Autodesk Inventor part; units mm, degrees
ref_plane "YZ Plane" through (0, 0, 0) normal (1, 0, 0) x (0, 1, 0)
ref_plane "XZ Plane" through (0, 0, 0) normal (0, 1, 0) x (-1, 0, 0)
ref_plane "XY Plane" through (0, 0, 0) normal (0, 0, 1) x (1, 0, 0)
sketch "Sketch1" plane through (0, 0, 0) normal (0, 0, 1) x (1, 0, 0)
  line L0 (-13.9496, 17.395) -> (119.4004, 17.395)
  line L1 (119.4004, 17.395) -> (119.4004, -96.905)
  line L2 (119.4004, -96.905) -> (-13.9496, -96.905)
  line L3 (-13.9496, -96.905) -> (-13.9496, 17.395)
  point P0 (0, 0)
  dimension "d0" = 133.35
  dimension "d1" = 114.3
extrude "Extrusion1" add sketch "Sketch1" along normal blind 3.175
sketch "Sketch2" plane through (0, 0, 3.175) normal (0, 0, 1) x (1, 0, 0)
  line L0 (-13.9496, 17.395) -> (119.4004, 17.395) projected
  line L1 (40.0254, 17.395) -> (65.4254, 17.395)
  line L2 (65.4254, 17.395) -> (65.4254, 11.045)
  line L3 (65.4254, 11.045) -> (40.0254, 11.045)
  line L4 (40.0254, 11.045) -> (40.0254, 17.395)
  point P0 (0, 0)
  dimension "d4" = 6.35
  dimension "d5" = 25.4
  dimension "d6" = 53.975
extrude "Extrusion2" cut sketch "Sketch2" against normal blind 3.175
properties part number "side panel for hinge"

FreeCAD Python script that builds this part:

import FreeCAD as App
import Part
import Sketcher
from FreeCAD import Vector
Q = App.Units.Quantity


def add_polygon(sketch, points):
    """Adds a closed chain of lines whose ends are joined by coincident constraints."""
    first, n = sketch.GeometryCount, len(points)
    for a, b in zip(points, points[1:] + points[:1]):
        sketch.addGeometry(Part.LineSegment(App.Vector(*a, 0), App.Vector(*b, 0)), False)
    for i in range(n):
        sketch.addConstraint(Sketcher.Constraint("Coincident", first + i, 2, first + (i + 1) % n, 1))

doc = App.newDocument("Part")
body = doc.addObject("PartDesign::Body", "Body")

# Sketch on XY plane
sketch1 = body.newObject("Sketcher::SketchObject", "Sketch")
sketch1.AttachmentSupport = (doc.getObject("XY_Plane"), [""])
sketch1.MapMode = "FlatFace"
add_polygon(sketch1, [(119, 17), (-14, 17), (-14, -97), (119, -97)])  # lines 0-3
sketch1.addConstraint(Sketcher.Constraint("Horizontal", 0))
sketch1.addConstraint(Sketcher.Constraint("Vertical", 1))
sketch1.addConstraint(Sketcher.Constraint("Horizontal", 2))
sketch1.addConstraint(Sketcher.Constraint("Vertical", 3))
sketch1.addConstraint(Sketcher.Constraint("DistanceY", 1, 2, 1, 1, Q("4.5 in")))
sketch1.addConstraint(Sketcher.Constraint("DistanceX", 0, 2, 0, 1, Q("5.25 in")))
sketch1.addConstraint(Sketcher.Constraint("DistanceX", 0, 2, -1, 1, Q("0.5492 in")))
sketch1.addConstraint(Sketcher.Constraint("DistanceY", -1, 1, 0, 2, 17.395))
pad1 = body.newObject("PartDesign::Pad", "Pad")
pad1.Profile = sketch1
pad1.Length = Q("0.125 in")

# Sketch on XY plane
sketch2 = body.newObject("Sketcher::SketchObject", "Sketch001")
sketch2.AttachmentSupport = (doc.getObject("XY_Plane"), [""])
sketch2.MapMode = "FlatFace"
sketch2.AttachmentOffset = App.Placement(Vector(0, 0, 0.125 * 25.4), App.Rotation())
add_polygon(sketch2, [(65, 17), (40, 17), (40, 11), (65, 11)])  # lines 0-3
sketch2.addConstraint(Sketcher.Constraint("Horizontal", 0))
sketch2.addConstraint(Sketcher.Constraint("Vertical", 1))
sketch2.addConstraint(Sketcher.Constraint("Horizontal", 2))
sketch2.addConstraint(Sketcher.Constraint("Vertical", 3))
sketch2.addConstraint(Sketcher.Constraint("DistanceX", 0, 2, 0, 1, Q("1 in")))
sketch2.addConstraint(Sketcher.Constraint("DistanceY", 1, 2, 1, 1, Q("0.25 in")))
sketch2.addConstraint(Sketcher.Constraint("DistanceX", -1, 1, 0, 2, Q("1.5758 in")))
sketch2.addConstraint(Sketcher.Constraint("DistanceY", -1, 1, 0, 2, 17.395))
pocket1 = body.newObject("PartDesign::Pocket", "Pocket")
pocket1.Profile = sketch2
pocket1.Length = Q("0.125 in")

doc.recompute()
